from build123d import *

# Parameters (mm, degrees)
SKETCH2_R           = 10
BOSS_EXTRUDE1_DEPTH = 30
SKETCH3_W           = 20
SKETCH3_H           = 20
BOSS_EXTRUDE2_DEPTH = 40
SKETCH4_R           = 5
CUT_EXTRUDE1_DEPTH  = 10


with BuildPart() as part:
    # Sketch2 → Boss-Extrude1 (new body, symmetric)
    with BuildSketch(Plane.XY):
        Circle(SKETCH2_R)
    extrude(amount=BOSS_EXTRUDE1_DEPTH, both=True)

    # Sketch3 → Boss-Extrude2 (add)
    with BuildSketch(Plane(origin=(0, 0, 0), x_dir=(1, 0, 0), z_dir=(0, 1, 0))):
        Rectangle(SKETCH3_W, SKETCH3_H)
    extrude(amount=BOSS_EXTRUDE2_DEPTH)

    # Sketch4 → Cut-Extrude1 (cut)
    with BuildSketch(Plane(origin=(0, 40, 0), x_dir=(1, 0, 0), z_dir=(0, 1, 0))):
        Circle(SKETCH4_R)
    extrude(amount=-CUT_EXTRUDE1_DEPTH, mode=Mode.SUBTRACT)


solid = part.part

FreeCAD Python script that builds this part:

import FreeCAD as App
import Part
import Sketcher
Q = App.Units.Quantity


def add_polygon(sketch, points):
    """Adds a closed chain of lines whose ends are joined by coincident constraints."""
    first, n = sketch.GeometryCount, len(points)
    for a, b in zip(points, points[1:] + points[:1]):
        sketch.addGeometry(Part.LineSegment(App.Vector(*a, 0), App.Vector(*b, 0)), False)
    for i in range(n):
        sketch.addConstraint(Sketcher.Constraint("Coincident", first + i, 2, first + (i + 1) % n, 1))

doc = App.newDocument("Part")
body = doc.addObject("PartDesign::Body", "Body")

sketch1 = body.newObject("Sketcher::SketchObject", "Sketch")
sketch1.AttachmentSupport = (doc.getObject("XY_Plane"), [""])
sketch1.MapMode = "FlatFace"
sketch1.addGeometry(Part.Circle(App.Vector(0, 0, 0), App.Vector(0, 0, 1), 10), False)
sketch1.addConstraint([
    Sketcher.Constraint("Coincident", 0, 3, -1, 1),
    Sketcher.Constraint("Diameter", 0, Q("20 mm")),
])
pad1 = body.newObject("PartDesign::Pad", "Pad")
pad1.Profile = sketch1
pad1.Length = 60
pad1.Midplane = True

sketch2 = body.newObject("Sketcher::SketchObject", "Sketch001")
sketch2.AttachmentSupport = (doc.getObject("XZ_Plane"), [""])
sketch2.MapMode = "FlatFace"
add_polygon(sketch2, [(-10, -10), (-10, 10), (10, 10), (10, -10)])
sketch2.addConstraint([
    Sketcher.Constraint("Vertical", 0),
    Sketcher.Constraint("Horizontal", 1),
    Sketcher.Constraint("Vertical", 2),
    Sketcher.Constraint("Horizontal", 3),
    Sketcher.Constraint("Symmetric", 0, 2, 2, 2, -1, 1),
    Sketcher.Constraint("Equal", 3, 0),
    Sketcher.Constraint("DistanceX", 1, 1, 1, 2, Q("20 mm")),
])
pad2 = body.newObject("PartDesign::Pad", "Pad001")
pad2.Profile = sketch2
pad2.Length = 40
pad2.Reversed = True

sketch3 = body.newObject("Sketcher::SketchObject", "Sketch002")
sketch3.AttachmentSupport = (doc.getObject("XZ_Plane"), [""])
sketch3.MapMode = "FlatFace"
sketch3.AttachmentOffset = App.Placement(App.Vector(0, 0, -40), App.Rotation())
sketch3.addGeometry(Part.Circle(App.Vector(0, 0, 0), App.Vector(0, 0, 1), 5), False)
sketch3.addConstraint([
    Sketcher.Constraint("Coincident", 0, 3, -1, 1),
    Sketcher.Constraint("Diameter", 0, Q("10 mm")),
])
pocket1 = body.newObject("PartDesign::Pocket", "Pocket")
pocket1.Profile = sketch3
pocket1.Length = 10
pocket1.Reversed = True

doc.recompute()
